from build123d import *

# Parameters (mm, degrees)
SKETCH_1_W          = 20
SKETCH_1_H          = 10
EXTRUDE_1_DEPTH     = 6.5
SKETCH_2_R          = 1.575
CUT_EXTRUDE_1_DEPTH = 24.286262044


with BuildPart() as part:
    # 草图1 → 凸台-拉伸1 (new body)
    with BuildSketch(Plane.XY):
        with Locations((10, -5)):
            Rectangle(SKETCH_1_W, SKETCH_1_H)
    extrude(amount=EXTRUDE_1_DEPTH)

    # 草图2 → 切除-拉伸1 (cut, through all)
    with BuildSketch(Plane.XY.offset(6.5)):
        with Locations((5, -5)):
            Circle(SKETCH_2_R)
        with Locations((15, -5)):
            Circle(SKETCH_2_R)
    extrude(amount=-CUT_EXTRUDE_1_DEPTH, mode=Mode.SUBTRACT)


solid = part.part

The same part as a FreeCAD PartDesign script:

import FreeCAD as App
import Part
import Sketcher
Q = App.Units.Quantity


def add_polygon(sketch, points):
    """Adds a closed chain of lines whose ends are joined by coincident constraints."""
    first, n = sketch.GeometryCount, len(points)
    for a, b in zip(points, points[1:] + points[:1]):
        sketch.addGeometry(Part.LineSegment(App.Vector(*a, 0), App.Vector(*b, 0)), False)
    for i in range(n):
        sketch.addConstraint(Sketcher.Constraint("Coincident", first + i, 2, first + (i + 1) % n, 1))

doc = App.newDocument("Part")
params = doc.addObject("Spreadsheet::Sheet", "Params")
for row, (alias, value) in enumerate([
    ("sketch1_width", "20 mm"),
    ("sketch1_height", "10 mm"),
    ("pad1_length", "6.5 mm"),
    ("sketch2_diameter", "3.15 mm"),
], start=1):
    params.set(f"A{row}", alias)
    params.set(f"B{row}", "=" + value)
    params.setAlias(f"B{row}", alias)

body = doc.addObject("PartDesign::Body", "Body")

# Sketch on XY plane
sketch1 = doc.addObject("Sketcher::SketchObject", "Sketch")
body.addObject(sketch1)
sketch1.AttachmentSupport = (doc.XY_Plane, [""])
sketch1.MapMode = "FlatFace"
add_polygon(sketch1, [(0, 0), (0, -10), (20, -10), (20, 0)])  # lines 0-3
sketch1.addConstraint(Sketcher.Constraint("Vertical", 0))
sketch1.addConstraint(Sketcher.Constraint("Horizontal", 1))
sketch1.addConstraint(Sketcher.Constraint("Vertical", 2))
sketch1.addConstraint(Sketcher.Constraint("Horizontal", 3))
sketch1.addConstraint(Sketcher.Constraint("Coincident", 3, 2, -1, 1))
sketch1.addConstraint(Sketcher.Constraint("DistanceX", 1, 1, 1, 2, Q("20 mm")))
sketch1.addConstraint(Sketcher.Constraint("DistanceY", 0, 2, 0, 1, Q("10 mm")))
sketch1.setExpression("Constraints[9]", "Params.sketch1_width")
sketch1.setExpression("Constraints[10]", "Params.sketch1_height")
pad1 = doc.addObject("PartDesign::Pad", "Pad")
body.addObject(pad1)
pad1.Profile = sketch1
pad1.setExpression("Length", "Params.pad1_length")

# Sketch on XY plane
sketch2 = doc.addObject("Sketcher::SketchObject", "Sketch001")
body.addObject(sketch2)
sketch2.AttachmentSupport = (doc.XY_Plane, [""])
sketch2.MapMode = "FlatFace"
sketch2.AttachmentOffset = App.Placement(App.Vector(0, 0, 6.5), App.Rotation())
sketch2.addGeometry(Part.Circle(App.Vector(5, -5, 0), App.Vector(0, 0, 1), 1.6), False)
sketch2.addGeometry(Part.Circle(App.Vector(15, -5, 0), App.Vector(0, 0, 1), 1.6), False)
sketch2.addConstraint(Sketcher.Constraint("Equal", 0, 1))
sketch2.addConstraint(Sketcher.Constraint("Horizontal", 0, 3, 1, 3))
sketch2.addConstraint(Sketcher.Constraint("Diameter", 0, Q("3.15 mm")))
sketch2.addConstraint(Sketcher.Constraint("DistanceX", -1, 1, 0, 3, Q("5 mm")))
sketch2.addConstraint(Sketcher.Constraint("DistanceY", 0, 3, -1, 1, Q("5 mm")))
sketch2.addConstraint(Sketcher.Constraint("DistanceX", -1, 1, 1, 3, Q("15 mm")))
sketch2.setExpression("Constraints[2]", "Params.sketch2_diameter")
pocket1 = doc.addObject("PartDesign::Pocket", "Pocket")
body.addObject(pocket1)
pocket1.Profile = sketch2
pocket1.Type = "ThroughAll"

doc.recompute()
